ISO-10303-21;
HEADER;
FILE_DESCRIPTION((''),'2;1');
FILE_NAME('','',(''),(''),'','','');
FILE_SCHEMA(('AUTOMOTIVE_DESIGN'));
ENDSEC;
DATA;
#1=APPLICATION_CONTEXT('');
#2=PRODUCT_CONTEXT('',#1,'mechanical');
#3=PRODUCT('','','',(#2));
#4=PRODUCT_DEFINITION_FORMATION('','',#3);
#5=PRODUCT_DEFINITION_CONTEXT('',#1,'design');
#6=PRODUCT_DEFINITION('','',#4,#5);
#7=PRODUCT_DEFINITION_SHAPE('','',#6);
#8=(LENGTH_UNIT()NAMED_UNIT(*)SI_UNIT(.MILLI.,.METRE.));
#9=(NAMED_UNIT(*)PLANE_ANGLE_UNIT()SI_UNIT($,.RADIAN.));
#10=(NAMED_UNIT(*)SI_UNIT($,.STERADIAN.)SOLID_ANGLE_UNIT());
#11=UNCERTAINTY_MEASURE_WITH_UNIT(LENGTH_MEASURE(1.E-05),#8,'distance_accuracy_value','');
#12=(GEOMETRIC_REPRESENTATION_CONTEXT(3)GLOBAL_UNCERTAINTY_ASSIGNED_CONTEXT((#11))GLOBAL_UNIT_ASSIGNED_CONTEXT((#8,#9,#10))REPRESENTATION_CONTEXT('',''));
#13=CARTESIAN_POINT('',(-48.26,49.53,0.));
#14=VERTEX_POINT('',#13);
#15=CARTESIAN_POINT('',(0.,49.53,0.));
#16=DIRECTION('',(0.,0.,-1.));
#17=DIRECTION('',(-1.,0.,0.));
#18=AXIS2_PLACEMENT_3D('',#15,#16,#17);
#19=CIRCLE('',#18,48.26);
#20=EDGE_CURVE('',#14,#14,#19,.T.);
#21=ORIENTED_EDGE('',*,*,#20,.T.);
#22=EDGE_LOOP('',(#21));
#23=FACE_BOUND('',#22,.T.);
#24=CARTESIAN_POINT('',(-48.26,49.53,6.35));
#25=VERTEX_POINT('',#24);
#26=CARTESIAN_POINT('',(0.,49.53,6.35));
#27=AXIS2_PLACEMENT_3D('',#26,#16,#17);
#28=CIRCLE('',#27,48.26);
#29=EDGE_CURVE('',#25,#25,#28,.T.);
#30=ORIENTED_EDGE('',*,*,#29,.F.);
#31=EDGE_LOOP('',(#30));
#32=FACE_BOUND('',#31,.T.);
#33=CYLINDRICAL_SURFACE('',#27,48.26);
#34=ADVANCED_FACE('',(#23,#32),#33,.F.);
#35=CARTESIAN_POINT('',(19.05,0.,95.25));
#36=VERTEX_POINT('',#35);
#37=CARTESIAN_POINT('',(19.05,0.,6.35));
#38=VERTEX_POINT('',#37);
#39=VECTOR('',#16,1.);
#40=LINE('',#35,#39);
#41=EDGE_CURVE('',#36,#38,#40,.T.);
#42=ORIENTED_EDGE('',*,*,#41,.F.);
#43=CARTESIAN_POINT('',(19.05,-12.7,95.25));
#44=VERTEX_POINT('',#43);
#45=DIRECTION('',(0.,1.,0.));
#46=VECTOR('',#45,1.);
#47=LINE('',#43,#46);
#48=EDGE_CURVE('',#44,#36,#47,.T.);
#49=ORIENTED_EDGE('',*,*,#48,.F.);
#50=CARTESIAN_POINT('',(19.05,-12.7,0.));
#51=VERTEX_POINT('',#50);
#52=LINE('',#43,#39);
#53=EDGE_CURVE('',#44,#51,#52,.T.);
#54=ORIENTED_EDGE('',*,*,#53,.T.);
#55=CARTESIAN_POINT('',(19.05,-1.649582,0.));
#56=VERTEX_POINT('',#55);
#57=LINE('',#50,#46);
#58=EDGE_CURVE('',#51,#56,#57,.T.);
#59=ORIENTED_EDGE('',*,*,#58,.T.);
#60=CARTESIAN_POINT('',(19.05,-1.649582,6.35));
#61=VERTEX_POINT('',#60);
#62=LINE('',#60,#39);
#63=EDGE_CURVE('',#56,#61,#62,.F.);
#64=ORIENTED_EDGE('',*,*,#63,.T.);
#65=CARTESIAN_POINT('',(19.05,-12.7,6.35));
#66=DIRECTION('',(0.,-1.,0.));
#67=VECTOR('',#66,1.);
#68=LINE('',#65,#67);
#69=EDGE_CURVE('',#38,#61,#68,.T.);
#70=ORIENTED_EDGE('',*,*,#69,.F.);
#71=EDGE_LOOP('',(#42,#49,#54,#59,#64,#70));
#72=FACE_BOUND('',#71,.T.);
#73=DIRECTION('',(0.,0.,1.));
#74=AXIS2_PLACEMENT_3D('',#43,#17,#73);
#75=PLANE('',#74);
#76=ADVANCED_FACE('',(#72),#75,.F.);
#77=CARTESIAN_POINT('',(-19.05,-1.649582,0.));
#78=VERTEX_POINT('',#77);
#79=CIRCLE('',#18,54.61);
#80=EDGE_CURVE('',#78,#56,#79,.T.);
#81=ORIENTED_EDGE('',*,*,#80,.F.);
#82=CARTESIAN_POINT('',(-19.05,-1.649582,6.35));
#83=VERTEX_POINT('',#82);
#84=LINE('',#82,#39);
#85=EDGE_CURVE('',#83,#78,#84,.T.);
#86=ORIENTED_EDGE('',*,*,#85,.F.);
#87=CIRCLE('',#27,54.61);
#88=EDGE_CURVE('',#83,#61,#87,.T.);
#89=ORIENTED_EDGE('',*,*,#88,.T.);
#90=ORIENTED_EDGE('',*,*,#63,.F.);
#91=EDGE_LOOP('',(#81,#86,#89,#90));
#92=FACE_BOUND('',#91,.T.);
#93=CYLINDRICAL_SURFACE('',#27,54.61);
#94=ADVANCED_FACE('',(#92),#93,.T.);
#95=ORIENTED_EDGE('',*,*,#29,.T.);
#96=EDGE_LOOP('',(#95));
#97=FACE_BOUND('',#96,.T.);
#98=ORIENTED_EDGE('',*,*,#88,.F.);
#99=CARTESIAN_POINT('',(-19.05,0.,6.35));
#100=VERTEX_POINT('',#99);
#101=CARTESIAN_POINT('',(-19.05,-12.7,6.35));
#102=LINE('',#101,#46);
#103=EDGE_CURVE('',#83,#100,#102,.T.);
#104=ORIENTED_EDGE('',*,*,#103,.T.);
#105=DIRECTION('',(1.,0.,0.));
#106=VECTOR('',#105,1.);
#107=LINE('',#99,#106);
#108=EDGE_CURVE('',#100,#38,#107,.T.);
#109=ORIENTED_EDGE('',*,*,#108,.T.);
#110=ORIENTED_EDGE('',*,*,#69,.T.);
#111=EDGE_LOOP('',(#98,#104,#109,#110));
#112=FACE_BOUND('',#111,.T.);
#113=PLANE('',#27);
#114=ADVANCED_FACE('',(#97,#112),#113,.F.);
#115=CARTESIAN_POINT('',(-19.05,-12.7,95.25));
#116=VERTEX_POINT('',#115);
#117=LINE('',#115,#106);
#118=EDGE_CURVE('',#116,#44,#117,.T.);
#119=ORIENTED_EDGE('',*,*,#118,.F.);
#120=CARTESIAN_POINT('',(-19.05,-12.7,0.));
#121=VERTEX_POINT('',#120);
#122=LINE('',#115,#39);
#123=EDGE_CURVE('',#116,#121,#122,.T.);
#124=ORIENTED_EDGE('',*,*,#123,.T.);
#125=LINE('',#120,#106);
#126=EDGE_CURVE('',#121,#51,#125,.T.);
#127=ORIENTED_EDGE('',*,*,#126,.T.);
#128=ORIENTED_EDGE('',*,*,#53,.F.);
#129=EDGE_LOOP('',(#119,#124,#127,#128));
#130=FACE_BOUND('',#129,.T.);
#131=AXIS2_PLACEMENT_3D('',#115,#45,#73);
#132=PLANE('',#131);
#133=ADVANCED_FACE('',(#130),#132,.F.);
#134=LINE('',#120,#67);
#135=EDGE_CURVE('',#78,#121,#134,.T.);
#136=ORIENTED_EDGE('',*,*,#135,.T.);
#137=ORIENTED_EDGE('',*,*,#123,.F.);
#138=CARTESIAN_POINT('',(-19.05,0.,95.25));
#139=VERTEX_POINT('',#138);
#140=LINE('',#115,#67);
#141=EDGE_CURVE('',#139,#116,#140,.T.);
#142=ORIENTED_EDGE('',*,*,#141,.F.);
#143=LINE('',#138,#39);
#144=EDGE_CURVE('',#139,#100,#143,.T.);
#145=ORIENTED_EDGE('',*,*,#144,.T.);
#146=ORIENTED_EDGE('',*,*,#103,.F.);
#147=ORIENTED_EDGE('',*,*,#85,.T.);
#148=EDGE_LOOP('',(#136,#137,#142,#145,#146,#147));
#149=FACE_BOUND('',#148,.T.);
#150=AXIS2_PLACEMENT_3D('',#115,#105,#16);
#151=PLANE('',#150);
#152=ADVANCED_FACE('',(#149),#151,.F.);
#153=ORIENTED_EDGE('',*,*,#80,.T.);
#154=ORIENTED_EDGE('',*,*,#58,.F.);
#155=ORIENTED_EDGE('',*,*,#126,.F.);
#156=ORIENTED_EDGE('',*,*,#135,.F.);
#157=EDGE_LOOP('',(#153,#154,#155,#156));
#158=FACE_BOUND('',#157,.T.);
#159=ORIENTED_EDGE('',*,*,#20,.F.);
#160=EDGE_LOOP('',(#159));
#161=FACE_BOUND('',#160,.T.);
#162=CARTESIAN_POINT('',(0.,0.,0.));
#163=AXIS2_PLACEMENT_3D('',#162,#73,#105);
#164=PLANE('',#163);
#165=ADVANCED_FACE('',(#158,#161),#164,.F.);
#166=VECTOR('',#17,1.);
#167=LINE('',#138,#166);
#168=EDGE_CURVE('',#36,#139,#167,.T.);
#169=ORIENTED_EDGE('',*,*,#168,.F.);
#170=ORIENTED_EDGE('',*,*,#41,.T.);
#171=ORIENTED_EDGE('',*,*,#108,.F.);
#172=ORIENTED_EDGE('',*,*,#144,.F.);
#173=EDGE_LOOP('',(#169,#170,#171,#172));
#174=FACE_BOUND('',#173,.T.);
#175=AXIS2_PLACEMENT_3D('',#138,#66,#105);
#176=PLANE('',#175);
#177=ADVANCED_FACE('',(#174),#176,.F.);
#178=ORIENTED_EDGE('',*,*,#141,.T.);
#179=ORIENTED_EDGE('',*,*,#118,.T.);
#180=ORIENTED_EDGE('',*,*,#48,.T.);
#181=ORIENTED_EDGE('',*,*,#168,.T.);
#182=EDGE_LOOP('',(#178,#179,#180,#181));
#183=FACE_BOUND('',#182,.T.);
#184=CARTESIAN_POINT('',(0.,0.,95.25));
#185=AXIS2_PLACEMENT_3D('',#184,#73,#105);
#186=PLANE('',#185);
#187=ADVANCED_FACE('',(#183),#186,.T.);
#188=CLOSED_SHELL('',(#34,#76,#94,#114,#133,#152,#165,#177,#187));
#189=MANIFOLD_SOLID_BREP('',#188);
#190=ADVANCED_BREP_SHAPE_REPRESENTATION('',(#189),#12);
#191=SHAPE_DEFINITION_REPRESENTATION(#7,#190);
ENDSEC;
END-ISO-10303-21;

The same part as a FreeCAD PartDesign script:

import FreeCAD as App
import Part
import Sketcher

V = App.Vector
Q = App.Units.Quantity

doc = App.newDocument("Part")
body = doc.addObject("PartDesign::Body", "Body")

# Sketch on XY plane
sketch1 = doc.addObject("Sketcher::SketchObject", "Sketch")
body.addObject(sketch1)
sketch1.AttachmentSupport = (doc.XY_Plane, [""])
sketch1.MapMode = "FlatFace"
sketch1.addGeometry([
    Part.LineSegment(V(-19, 0, 0), V(-19, -13, 0)),
    Part.LineSegment(V(-19, -13, 0), V(19, -13, 0)),
    Part.LineSegment(V(19, -13, 0), V(19, 0, 0)),
    Part.LineSegment(V(19, 0, 0), V(-19, 0, 0)),
], False)
sketch1.addConstraint([
    Sketcher.Constraint("Coincident", 0, 2, 1, 1),
    Sketcher.Constraint("Coincident", 1, 2, 2, 1),
    Sketcher.Constraint("Coincident", 2, 2, 3, 1),
    Sketcher.Constraint("Coincident", 3, 2, 0, 1),
    Sketcher.Constraint("Vertical", 0),
    Sketcher.Constraint("Horizontal", 1),
    Sketcher.Constraint("Vertical", 2),
    Sketcher.Constraint("Horizontal", 3),
    Sketcher.Constraint("Symmetric", 2, 2, 3, 2, -1, 1),
    Sketcher.Constraint("DistanceX", 1, 1, 1, 2, Q("1.5 in")),
    Sketcher.Constraint("DistanceY", 0, 2, 0, 1, Q("0.5 in")),
])
pad1 = doc.addObject("PartDesign::Pad", "Pad")
body.addObject(pad1)
pad1.Profile = sketch1
pad1.Length = Q("3.75 in")

# Sketch on XY plane
sketch2 = doc.addObject("Sketcher::SketchObject", "Sketch001")
body.addObject(sketch2)
sketch2.AttachmentSupport = (doc.XY_Plane, [""])
sketch2.MapMode = "FlatFace"
sketch2.addGeometry([
    Part.Circle(V(0, 50, 0), V(0, 0, 1), 55),
    Part.Circle(V(0, 50, 0), V(0, 0, 1), 48),
], False)
sketch2.addConstraint([
    Sketcher.Constraint("Coincident", 1, 3, 0, 3),
    Sketcher.Constraint("PointOnObject", 0, 3, -2),
    Sketcher.Constraint("Diameter", 0, Q("4.3 in")),
    Sketcher.Constraint("Diameter", 1, Q("3.8 in")),
    Sketcher.Constraint("DistanceY", -1, 1, 0, 3, Q("1.95 in")),
])
pad2 = doc.addObject("PartDesign::Pad", "Pad001")
body.addObject(pad2)
pad2.Profile = sketch2
pad2.Length = Q("0.25 in")

doc.recompute()
